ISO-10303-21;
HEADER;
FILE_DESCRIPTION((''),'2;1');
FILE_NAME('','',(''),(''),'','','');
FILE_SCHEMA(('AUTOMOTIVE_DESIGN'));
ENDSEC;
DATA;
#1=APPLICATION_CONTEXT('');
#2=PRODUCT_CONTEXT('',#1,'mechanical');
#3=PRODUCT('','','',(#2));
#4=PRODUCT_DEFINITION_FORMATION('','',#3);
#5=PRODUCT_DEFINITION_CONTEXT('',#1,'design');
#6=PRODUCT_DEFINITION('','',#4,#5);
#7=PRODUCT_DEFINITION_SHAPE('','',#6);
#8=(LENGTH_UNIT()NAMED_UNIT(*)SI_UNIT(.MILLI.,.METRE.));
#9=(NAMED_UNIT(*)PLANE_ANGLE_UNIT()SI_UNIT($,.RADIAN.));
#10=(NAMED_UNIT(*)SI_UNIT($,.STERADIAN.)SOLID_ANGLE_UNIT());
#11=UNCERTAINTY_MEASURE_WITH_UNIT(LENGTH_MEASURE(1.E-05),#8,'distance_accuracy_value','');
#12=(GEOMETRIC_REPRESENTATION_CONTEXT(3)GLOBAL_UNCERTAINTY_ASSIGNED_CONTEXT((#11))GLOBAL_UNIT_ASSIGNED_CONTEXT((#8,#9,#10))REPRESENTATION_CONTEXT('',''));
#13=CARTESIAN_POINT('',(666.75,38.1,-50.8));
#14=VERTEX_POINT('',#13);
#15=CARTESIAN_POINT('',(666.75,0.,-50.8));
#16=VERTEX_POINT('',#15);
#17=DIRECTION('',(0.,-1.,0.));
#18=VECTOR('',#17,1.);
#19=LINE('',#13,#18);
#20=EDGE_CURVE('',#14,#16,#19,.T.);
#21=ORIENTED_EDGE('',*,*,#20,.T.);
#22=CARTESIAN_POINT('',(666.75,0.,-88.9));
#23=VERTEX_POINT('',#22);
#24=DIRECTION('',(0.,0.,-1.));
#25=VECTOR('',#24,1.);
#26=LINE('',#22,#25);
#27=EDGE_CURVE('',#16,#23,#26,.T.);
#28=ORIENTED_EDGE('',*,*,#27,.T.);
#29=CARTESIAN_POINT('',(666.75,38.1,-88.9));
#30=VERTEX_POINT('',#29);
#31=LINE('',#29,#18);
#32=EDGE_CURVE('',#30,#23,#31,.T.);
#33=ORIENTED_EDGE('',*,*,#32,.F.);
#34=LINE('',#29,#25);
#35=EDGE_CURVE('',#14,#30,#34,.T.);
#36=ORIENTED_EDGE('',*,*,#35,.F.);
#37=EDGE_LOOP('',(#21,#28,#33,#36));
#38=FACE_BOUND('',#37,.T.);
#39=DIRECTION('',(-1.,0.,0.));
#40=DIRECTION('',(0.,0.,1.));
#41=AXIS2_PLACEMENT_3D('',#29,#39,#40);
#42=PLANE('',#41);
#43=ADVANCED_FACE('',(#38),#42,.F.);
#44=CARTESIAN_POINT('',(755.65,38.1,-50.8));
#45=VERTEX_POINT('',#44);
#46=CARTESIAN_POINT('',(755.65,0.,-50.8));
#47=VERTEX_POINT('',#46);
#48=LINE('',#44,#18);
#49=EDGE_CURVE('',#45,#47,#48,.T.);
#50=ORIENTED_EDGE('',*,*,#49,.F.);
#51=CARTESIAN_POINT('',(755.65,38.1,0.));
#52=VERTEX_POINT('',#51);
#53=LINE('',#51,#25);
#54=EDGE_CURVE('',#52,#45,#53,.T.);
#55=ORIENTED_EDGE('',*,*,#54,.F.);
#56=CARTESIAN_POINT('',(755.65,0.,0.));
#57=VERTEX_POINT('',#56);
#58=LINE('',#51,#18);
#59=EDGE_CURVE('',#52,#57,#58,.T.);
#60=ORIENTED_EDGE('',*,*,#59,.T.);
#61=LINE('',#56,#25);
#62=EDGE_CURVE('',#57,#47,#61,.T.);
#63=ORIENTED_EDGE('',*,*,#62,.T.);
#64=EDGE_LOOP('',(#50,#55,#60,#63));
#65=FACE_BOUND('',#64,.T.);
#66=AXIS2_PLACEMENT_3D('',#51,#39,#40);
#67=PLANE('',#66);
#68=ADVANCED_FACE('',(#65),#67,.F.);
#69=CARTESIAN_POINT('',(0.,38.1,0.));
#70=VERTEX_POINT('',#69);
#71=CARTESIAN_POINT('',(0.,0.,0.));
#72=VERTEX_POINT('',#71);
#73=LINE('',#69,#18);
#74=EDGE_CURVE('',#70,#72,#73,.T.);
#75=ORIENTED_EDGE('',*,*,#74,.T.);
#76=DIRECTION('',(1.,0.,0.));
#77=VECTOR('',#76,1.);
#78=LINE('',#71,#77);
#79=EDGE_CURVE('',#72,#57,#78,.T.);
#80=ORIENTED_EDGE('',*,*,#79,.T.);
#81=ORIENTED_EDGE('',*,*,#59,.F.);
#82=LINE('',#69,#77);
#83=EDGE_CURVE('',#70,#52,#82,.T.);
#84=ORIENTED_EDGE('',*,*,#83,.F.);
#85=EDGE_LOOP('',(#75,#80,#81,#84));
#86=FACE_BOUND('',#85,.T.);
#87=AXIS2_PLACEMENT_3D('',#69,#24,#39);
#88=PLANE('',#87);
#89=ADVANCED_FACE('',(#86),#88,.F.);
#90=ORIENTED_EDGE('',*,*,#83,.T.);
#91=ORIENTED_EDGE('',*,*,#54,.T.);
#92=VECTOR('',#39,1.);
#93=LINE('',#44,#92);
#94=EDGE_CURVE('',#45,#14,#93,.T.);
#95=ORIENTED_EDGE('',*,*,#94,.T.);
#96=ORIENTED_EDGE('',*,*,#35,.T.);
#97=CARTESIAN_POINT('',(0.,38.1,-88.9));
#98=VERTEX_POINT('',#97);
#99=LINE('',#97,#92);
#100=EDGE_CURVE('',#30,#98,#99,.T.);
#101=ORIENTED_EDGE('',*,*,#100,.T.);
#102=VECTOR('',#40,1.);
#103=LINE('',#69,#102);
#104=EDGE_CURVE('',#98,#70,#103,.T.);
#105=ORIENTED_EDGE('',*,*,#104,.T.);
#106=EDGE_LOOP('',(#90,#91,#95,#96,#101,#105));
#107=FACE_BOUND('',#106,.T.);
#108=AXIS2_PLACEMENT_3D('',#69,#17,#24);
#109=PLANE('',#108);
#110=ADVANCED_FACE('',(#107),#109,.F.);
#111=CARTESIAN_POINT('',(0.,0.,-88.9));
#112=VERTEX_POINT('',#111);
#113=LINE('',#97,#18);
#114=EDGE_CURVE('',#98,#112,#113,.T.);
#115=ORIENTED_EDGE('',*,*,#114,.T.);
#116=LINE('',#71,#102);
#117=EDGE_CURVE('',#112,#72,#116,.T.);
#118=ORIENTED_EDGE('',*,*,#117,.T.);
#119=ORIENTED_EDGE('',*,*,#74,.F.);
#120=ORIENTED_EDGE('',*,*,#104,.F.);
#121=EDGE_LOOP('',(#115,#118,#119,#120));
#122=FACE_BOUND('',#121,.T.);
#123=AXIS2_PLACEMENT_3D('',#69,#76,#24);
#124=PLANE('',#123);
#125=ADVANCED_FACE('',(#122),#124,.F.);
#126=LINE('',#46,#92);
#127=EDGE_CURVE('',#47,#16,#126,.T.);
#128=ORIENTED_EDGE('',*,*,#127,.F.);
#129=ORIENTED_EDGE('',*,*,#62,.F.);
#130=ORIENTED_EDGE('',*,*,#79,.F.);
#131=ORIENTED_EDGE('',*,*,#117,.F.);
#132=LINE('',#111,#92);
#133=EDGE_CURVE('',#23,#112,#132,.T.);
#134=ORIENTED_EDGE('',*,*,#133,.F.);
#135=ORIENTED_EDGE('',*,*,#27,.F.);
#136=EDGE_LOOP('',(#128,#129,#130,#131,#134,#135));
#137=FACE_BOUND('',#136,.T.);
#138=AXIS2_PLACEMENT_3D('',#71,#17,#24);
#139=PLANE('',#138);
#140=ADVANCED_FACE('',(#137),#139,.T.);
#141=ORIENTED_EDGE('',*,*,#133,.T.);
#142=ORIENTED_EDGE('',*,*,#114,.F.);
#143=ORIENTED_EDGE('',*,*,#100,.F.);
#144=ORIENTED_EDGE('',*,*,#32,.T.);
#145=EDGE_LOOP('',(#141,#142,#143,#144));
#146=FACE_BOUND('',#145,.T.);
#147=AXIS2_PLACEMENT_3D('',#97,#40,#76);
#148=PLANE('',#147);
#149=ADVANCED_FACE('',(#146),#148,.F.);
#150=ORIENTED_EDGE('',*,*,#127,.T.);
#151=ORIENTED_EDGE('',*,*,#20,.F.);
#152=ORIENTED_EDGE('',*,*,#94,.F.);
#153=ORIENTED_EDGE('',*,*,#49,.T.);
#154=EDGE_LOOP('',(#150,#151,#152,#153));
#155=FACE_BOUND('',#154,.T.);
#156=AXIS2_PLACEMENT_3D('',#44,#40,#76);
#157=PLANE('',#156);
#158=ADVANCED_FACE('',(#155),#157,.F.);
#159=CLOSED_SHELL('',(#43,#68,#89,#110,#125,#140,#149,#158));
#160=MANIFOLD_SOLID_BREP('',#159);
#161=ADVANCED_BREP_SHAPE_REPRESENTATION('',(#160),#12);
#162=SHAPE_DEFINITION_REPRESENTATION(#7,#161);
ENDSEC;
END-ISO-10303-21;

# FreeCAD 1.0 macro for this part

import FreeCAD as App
import Part
import Sketcher
from FreeCAD import Vector
Q = App.Units.Quantity


def add_polygon(sketch, points):
    """Adds a closed chain of lines whose ends are joined by coincident constraints."""
    first, n = sketch.GeometryCount, len(points)
    for a, b in zip(points, points[1:] + points[:1]):
        sketch.addGeometry(Part.LineSegment(App.Vector(*a, 0), App.Vector(*b, 0)), False)
    for i in range(n):
        sketch.addConstraint(Sketcher.Constraint("Coincident", first + i, 2, first + (i + 1) % n, 1))

doc = App.newDocument("Part")
body = doc.addObject("PartDesign::Body", "Body")

# Sketch on XZ plane
sketch1 = doc.addObject("Sketcher::SketchObject", "Sketch")
body.addObject(sketch1)
sketch1.AttachmentSupport = (doc.XZ_Plane, [""])
sketch1.MapMode = "FlatFace"
add_polygon(sketch1, [(0, -88.9), (0, 0), (755.65, 0), (755.65, -88.9)])  # lines 0-3
sketch1.addConstraint(Sketcher.Constraint("Vertical", 0))
sketch1.addConstraint(Sketcher.Constraint("Horizontal", 1))
sketch1.addConstraint(Sketcher.Constraint("Vertical", 2))
sketch1.addConstraint(Sketcher.Constraint("Horizontal", 3))
sketch1.addConstraint(Sketcher.Constraint("Coincident", 0, 2, -1, 1))
sketch1.addConstraint(Sketcher.Constraint("DistanceY", 0, 1, 0, 2, Q("3.5 in")))
sketch1.addConstraint(Sketcher.Constraint("DistanceX", 1, 1, 1, 2, Q("29.75 in")))
pad1 = doc.addObject("PartDesign::Pad", "Pad")
body.addObject(pad1)
pad1.Profile = sketch1
pad1.Length = Q("1.5 in")
pad1.Reversed = True

# Sketch on XZ plane
sketch2 = doc.addObject("Sketcher::SketchObject", "Sketch001")
body.addObject(sketch2)
sketch2.AttachmentSupport = (doc.XZ_Plane, [""])
sketch2.MapMode = "FlatFace"
add_polygon(sketch2, [(666.75, -50.8), (666.75, -88.9), (755.65, -88.9), (755.65, -50.8)])  # lines 0-3
sketch2.addConstraint(Sketcher.Constraint("Vertical", 0))
sketch2.addConstraint(Sketcher.Constraint("Horizontal", 1))
sketch2.addConstraint(Sketcher.Constraint("Vertical", 2))
sketch2.addConstraint(Sketcher.Constraint("Horizontal", 3))
sketch2.addConstraint(Sketcher.Constraint("DistanceX", 1, 1, 1, 2, Q("3.5 in")))
sketch2.addConstraint(Sketcher.Constraint("DistanceY", 0, 2, 0, 1, Q("1.5 in")))
sketch2.addConstraint(Sketcher.Constraint("DistanceY", 2, 2, -1, 1, Q("2 in")))
sketch2.addConstraint(Sketcher.Constraint("DistanceX", -1, 1, 0, 2, Q("26.25 in")))
pocket1 = doc.addObject("PartDesign::Pocket", "Pocket")
body.addObject(pocket1)
pocket1.Profile = sketch2
pocket1.Type = "ThroughAll"

doc.recompute()
